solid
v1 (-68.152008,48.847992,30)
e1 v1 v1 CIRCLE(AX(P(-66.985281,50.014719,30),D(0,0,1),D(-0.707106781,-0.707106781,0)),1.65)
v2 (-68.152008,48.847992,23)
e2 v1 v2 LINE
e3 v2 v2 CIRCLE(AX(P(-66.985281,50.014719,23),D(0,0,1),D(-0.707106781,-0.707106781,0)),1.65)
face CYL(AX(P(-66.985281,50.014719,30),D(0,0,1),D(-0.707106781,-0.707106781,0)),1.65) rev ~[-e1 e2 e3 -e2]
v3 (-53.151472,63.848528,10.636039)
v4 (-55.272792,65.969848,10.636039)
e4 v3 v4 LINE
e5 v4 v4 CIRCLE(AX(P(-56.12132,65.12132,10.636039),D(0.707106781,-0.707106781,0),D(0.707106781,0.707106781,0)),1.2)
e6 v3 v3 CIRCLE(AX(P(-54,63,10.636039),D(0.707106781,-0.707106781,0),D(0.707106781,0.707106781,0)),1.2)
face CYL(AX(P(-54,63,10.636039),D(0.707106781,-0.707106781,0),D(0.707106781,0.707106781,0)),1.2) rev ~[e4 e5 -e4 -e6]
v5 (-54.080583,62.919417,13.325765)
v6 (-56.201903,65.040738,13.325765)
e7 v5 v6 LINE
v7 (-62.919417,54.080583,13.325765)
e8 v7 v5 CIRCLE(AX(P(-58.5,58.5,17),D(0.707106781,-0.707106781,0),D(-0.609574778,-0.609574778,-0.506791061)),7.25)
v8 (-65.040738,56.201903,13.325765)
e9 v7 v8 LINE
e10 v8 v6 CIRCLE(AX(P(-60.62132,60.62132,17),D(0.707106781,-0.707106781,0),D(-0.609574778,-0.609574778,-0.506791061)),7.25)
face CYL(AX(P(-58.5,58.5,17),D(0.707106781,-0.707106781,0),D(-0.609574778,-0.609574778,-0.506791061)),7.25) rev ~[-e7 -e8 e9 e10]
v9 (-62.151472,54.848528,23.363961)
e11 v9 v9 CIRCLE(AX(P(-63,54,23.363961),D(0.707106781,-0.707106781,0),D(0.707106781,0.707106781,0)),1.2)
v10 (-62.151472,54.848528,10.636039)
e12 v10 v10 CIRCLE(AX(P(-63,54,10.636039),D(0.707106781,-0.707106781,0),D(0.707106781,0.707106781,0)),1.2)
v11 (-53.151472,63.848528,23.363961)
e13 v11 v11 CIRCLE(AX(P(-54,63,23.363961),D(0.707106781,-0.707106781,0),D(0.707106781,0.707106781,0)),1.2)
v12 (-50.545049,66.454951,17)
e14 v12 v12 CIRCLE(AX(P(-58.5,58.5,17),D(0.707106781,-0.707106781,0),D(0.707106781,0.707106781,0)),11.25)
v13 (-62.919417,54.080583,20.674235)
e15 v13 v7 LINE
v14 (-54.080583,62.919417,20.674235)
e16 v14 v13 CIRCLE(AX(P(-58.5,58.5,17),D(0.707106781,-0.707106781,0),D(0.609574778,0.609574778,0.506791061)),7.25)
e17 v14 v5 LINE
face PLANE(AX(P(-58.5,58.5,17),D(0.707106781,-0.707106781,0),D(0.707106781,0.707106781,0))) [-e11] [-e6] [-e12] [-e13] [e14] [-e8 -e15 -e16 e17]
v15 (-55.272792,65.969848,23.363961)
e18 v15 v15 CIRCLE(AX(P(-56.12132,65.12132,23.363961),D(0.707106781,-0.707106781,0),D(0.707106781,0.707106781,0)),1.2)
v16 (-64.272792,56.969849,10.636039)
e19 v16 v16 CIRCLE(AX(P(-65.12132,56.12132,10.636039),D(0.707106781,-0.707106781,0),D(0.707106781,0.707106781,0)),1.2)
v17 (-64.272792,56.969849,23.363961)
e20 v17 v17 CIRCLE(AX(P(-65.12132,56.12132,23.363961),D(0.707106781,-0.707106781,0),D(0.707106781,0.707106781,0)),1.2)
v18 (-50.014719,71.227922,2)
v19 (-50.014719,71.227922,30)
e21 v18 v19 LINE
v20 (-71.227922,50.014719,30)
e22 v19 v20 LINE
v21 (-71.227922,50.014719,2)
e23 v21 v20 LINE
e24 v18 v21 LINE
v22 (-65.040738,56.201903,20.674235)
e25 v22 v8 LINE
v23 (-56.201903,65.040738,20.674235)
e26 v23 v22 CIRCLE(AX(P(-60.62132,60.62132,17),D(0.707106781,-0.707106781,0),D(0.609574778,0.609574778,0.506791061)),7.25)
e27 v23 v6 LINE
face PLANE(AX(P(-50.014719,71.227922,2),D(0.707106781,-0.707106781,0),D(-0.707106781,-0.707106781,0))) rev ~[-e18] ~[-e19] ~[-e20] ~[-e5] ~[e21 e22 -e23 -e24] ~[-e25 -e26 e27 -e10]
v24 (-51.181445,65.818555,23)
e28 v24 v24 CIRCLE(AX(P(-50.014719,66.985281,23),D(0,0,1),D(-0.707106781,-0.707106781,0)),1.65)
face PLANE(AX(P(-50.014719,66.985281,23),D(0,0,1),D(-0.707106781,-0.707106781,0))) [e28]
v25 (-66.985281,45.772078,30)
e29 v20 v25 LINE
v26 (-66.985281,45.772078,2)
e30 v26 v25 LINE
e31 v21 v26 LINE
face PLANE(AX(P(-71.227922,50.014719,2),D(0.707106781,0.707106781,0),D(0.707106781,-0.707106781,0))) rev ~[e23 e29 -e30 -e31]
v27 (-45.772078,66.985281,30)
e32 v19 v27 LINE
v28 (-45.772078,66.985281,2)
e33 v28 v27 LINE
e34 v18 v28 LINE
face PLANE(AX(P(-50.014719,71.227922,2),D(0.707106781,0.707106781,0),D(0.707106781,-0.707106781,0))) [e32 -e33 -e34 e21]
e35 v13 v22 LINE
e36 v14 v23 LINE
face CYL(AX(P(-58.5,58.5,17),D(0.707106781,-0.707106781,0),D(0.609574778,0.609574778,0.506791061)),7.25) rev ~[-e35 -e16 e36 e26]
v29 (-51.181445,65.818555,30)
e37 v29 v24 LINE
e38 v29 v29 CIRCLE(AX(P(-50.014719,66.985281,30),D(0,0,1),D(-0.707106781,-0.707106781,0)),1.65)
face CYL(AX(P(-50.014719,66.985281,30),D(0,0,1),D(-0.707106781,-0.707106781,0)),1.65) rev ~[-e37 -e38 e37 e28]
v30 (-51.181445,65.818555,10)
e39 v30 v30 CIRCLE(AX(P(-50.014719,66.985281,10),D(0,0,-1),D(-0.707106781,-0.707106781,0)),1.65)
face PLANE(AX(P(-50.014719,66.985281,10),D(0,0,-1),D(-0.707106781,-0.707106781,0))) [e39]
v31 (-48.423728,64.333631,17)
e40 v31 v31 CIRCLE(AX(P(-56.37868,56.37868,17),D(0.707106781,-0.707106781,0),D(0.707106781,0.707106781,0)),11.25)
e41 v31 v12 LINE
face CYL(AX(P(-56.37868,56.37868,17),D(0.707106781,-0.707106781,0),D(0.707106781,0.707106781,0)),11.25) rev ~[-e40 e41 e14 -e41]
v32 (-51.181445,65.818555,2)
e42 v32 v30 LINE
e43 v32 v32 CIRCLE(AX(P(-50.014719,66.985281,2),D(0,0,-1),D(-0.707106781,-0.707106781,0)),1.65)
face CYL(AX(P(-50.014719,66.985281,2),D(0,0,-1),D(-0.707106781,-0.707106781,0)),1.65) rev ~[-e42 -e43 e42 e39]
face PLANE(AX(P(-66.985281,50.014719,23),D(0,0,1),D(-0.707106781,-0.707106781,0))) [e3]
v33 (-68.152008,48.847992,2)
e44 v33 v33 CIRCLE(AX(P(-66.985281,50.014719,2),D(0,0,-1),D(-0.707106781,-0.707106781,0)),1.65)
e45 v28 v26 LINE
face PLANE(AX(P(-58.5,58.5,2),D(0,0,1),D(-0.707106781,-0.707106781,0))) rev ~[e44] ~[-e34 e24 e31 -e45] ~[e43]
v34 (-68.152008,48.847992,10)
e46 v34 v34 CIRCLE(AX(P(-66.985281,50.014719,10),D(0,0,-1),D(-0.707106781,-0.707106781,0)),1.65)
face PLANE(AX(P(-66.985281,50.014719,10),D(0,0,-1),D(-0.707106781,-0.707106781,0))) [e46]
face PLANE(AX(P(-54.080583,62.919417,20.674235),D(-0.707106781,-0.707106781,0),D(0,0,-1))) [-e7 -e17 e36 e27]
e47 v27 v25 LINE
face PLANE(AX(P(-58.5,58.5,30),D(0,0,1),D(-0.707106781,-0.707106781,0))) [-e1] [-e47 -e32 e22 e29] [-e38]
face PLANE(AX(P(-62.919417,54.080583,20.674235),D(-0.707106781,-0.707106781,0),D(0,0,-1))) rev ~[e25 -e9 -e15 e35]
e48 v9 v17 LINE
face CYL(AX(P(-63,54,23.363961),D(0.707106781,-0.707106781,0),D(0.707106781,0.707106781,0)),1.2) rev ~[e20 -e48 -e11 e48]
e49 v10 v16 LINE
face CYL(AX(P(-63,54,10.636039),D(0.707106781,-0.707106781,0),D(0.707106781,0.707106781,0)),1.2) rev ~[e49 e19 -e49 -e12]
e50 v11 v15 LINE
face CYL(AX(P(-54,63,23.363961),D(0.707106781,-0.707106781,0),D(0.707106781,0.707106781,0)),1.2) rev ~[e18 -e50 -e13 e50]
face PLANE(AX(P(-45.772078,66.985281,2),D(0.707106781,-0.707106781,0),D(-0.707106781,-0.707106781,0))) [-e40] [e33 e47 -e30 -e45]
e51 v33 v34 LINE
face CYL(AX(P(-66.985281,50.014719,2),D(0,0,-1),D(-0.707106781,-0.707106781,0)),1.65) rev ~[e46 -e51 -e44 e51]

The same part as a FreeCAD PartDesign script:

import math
import FreeCAD as App
import Part
import Sketcher
Q = App.Units.Quantity

doc = App.newDocument("Part")
body = doc.addObject("PartDesign::Body", "Body")

sketch1 = body.newObject("Sketcher::SketchObject", "Sketch")
sketch1.AttachmentSupport = (doc.getObject("XY_Plane"), [""])
sketch1.MapMode = "FlatFace"
sketch1.addGeometry([
    Part.LineSegment(App.Vector(-15, 3, 0), App.Vector(-15, -3, 0)),
    Part.LineSegment(App.Vector(-15, -3, 0), App.Vector(15, -3, 0)),
    Part.LineSegment(App.Vector(15, -3, 0), App.Vector(15, 3, 0)),
    Part.LineSegment(App.Vector(15, 3, 0), App.Vector(-15, 3, 0)),
], False)
sketch1.addConstraint([
    Sketcher.Constraint("Coincident", 0, 2, 1, 1),
    Sketcher.Constraint("Coincident", 1, 2, 2, 1),
    Sketcher.Constraint("Coincident", 2, 2, 3, 1),
    Sketcher.Constraint("Coincident", 3, 2, 0, 1),
    Sketcher.Constraint("Vertical", 0),
    Sketcher.Constraint("Horizontal", 1),
    Sketcher.Constraint("Vertical", 2),
    Sketcher.Constraint("Horizontal", 3),
    Sketcher.Constraint("Symmetric", 0, 2, 2, 2, -1, 1),
    Sketcher.Constraint("DistanceX", 1, 1, 1, 2, Q("30 mm")),
    Sketcher.Constraint("DistanceY", 0, 2, 0, 1, Q("6 mm")),
])
pad1 = body.newObject("PartDesign::Pad", "Pad")
pad1.Profile = sketch1
pad1.Length = 28

sketch2 = body.newObject("Sketcher::SketchObject", "Sketch001")
sketch2.AttachmentSupport = (doc.getObject("XZ_Plane"), [""])
sketch2.MapMode = "FlatFace"
sketch2.AttachmentOffset = App.Placement(App.Vector(0, 0, -3), App.Rotation())
sketch2.addGeometry(Part.Circle(App.Vector(0, 15, 0), App.Vector(0, 0, 1), 11.25), False)
sketch2.addConstraint([
    Sketcher.Constraint("PointOnObject", 0, 3, -2),
    Sketcher.Constraint("Diameter", 0, Q("22.5 mm")),
    Sketcher.Constraint("DistanceY", -1, 1, 0, 3, Q("15 mm")),
])
pocket1 = body.newObject("PartDesign::Pocket", "Pocket")
pocket1.Profile = sketch2
pocket1.Length = 3
pocket1.Reversed = True

sketch3 = body.newObject("Sketcher::SketchObject", "Sketch002")
sketch3.AttachmentSupport = (doc.getObject("XZ_Plane"), [""])
sketch3.MapMode = "FlatFace"
sketch3.addGeometry([
    Part.Circle(App.Vector(-6.363961, 8.636039, 0), App.Vector(0, 0, 1), 1.2),
    Part.Circle(App.Vector(-6.363961, 21.363961, 0), App.Vector(0, 0, 1), 1.2),
    Part.Circle(App.Vector(6.363961, 21.363961, 0), App.Vector(0, 0, 1), 1.2),
    Part.Circle(App.Vector(6.363961, 8.636039, 0), App.Vector(0, 0, 1), 1.2),
    Part.LineSegment(App.Vector(6.25, 18.674235, 0), App.Vector(6.25, 11.325765, 0)),
    Part.ArcOfCircle(Part.Circle(App.Vector(0, 15, 0), App.Vector(0, 0, 1), 7.25), math.radians(-149.549681), math.radians(-30.450319)),
    Part.LineSegment(App.Vector(-6.25, 11.325765, 0), App.Vector(-6.25, 18.674235, 0)),
    Part.ArcOfCircle(Part.Circle(App.Vector(0, 15, 0), App.Vector(0, 0, 1), 7.25), math.radians(30.450319), math.radians(149.549681)),
], False)
sketch3.addConstraint([
    Sketcher.Constraint("Coincident", 4, 2, 5, 2),
    Sketcher.Constraint("Coincident", 5, 1, 6, 1),
    Sketcher.Constraint("Coincident", 6, 2, 7, 2),
    Sketcher.Constraint("Coincident", 7, 1, 4, 1),
    Sketcher.Constraint("Vertical", 4),
    Sketcher.Constraint("Vertical", 6),
    Sketcher.Constraint("Coincident", 7, 3, 5, 3),
    Sketcher.Constraint("Equal", 0, 1),
    Sketcher.Constraint("Equal", 1, 2),
    Sketcher.Constraint("Equal", 2, 3),
    Sketcher.Constraint("Equal", 5, 7),
    Sketcher.Constraint("Symmetric", 1, 3, 2, 3, -2),
    Sketcher.Constraint("Symmetric", 0, 3, 3, 3, -2),
    Sketcher.Constraint("Symmetric", 4, 2, 5, 1, -2),
    Sketcher.Constraint("Vertical", 0, 3, 1, 3),
    Sketcher.Constraint("Diameter", 0, Q("2.4 mm")),
    Sketcher.Constraint("Radius", 5, Q("7.25 mm")),
    Sketcher.Constraint("DistanceY", -1, 1, 5, 3, Q("15 mm")),
    Sketcher.Constraint("DistanceX", 5, 1, 4, 2, Q("12.5 mm")),
    Sketcher.Constraint("DistanceX", 0, 3, -1, 1, Q("6.363961 mm")),
    Sketcher.Constraint("DistanceY", -1, 1, 0, 3, Q("8.636039 mm")),
    Sketcher.Constraint("DistanceY", -1, 1, 1, 3, Q("21.363961 mm")),
])
pocket2 = body.newObject("PartDesign::Pocket", "Pocket001")
pocket2.Profile = sketch3
pocket2.Length = 3
pocket2.Reversed = True

sketch4 = body.newObject("Sketcher::SketchObject", "Sketch003")
sketch4.AttachmentSupport = (doc.getObject("XY_Plane"), [""])
sketch4.MapMode = "FlatFace"
sketch4.AttachmentOffset = App.Placement(App.Vector(0, 0, 28), App.Rotation())
sketch4.addGeometry([
    Part.Circle(App.Vector(-12, 0, 0), App.Vector(0, 0, 1), 1.65),
    Part.Circle(App.Vector(12, 0, 0), App.Vector(0, 0, 1), 1.65),
], False)
sketch4.addConstraint([
    Sketcher.Constraint("Equal", 0, 1),
    Sketcher.Constraint("Symmetric", 0, 3, 1, 3, -1, 1),
    Sketcher.Constraint("PointOnObject", 0, 3, -1),
    Sketcher.Constraint("Diameter", 0, Q("3.3 mm")),
    Sketcher.Constraint("DistanceX", 0, 3, -1, 1, Q("12 mm")),
])
pocket3 = body.newObject("PartDesign::Pocket", "Pocket002")
pocket3.Profile = sketch4
pocket3.Length = 7

sketch5 = body.newObject("Sketcher::SketchObject", "Sketch004")
sketch5.AttachmentSupport = (doc.getObject("XY_Plane"), [""])
sketch5.MapMode = "FlatFace"
sketch5.addGeometry([
    Part.Circle(App.Vector(-12, 0, 0), App.Vector(0, 0, 1), 1.65),
    Part.Circle(App.Vector(12, 0, 0), App.Vector(0, 0, 1), 1.65),
], False)
sketch5.addConstraint([
    Sketcher.Constraint("Equal", 0, 1),
    Sketcher.Constraint("Symmetric", 0, 3, 1, 3, -1, 1),
    Sketcher.Constraint("PointOnObject", 0, 3, -1),
    Sketcher.Constraint("Diameter", 0, Q("3.3 mm")),
    Sketcher.Constraint("DistanceX", 0, 3, -1, 1, Q("12 mm")),
])
pocket4 = body.newObject("PartDesign::Pocket", "Pocket003")
pocket4.Profile = sketch5
pocket4.Length = 8
pocket4.Reversed = True
body2 = doc.addObject("PartDesign::Body", "Body001")
doc.recompute()

body.Placement = App.Placement(App.Vector(-58.5, 58.5, 2), App.Rotation(App.Vector(0, 0, 1), 225))
boolean = body2.newObject("PartDesign::Boolean", "Boolean")
boolean.Type = "Fuse"
boolean.addObjects([body])

doc.recompute()
